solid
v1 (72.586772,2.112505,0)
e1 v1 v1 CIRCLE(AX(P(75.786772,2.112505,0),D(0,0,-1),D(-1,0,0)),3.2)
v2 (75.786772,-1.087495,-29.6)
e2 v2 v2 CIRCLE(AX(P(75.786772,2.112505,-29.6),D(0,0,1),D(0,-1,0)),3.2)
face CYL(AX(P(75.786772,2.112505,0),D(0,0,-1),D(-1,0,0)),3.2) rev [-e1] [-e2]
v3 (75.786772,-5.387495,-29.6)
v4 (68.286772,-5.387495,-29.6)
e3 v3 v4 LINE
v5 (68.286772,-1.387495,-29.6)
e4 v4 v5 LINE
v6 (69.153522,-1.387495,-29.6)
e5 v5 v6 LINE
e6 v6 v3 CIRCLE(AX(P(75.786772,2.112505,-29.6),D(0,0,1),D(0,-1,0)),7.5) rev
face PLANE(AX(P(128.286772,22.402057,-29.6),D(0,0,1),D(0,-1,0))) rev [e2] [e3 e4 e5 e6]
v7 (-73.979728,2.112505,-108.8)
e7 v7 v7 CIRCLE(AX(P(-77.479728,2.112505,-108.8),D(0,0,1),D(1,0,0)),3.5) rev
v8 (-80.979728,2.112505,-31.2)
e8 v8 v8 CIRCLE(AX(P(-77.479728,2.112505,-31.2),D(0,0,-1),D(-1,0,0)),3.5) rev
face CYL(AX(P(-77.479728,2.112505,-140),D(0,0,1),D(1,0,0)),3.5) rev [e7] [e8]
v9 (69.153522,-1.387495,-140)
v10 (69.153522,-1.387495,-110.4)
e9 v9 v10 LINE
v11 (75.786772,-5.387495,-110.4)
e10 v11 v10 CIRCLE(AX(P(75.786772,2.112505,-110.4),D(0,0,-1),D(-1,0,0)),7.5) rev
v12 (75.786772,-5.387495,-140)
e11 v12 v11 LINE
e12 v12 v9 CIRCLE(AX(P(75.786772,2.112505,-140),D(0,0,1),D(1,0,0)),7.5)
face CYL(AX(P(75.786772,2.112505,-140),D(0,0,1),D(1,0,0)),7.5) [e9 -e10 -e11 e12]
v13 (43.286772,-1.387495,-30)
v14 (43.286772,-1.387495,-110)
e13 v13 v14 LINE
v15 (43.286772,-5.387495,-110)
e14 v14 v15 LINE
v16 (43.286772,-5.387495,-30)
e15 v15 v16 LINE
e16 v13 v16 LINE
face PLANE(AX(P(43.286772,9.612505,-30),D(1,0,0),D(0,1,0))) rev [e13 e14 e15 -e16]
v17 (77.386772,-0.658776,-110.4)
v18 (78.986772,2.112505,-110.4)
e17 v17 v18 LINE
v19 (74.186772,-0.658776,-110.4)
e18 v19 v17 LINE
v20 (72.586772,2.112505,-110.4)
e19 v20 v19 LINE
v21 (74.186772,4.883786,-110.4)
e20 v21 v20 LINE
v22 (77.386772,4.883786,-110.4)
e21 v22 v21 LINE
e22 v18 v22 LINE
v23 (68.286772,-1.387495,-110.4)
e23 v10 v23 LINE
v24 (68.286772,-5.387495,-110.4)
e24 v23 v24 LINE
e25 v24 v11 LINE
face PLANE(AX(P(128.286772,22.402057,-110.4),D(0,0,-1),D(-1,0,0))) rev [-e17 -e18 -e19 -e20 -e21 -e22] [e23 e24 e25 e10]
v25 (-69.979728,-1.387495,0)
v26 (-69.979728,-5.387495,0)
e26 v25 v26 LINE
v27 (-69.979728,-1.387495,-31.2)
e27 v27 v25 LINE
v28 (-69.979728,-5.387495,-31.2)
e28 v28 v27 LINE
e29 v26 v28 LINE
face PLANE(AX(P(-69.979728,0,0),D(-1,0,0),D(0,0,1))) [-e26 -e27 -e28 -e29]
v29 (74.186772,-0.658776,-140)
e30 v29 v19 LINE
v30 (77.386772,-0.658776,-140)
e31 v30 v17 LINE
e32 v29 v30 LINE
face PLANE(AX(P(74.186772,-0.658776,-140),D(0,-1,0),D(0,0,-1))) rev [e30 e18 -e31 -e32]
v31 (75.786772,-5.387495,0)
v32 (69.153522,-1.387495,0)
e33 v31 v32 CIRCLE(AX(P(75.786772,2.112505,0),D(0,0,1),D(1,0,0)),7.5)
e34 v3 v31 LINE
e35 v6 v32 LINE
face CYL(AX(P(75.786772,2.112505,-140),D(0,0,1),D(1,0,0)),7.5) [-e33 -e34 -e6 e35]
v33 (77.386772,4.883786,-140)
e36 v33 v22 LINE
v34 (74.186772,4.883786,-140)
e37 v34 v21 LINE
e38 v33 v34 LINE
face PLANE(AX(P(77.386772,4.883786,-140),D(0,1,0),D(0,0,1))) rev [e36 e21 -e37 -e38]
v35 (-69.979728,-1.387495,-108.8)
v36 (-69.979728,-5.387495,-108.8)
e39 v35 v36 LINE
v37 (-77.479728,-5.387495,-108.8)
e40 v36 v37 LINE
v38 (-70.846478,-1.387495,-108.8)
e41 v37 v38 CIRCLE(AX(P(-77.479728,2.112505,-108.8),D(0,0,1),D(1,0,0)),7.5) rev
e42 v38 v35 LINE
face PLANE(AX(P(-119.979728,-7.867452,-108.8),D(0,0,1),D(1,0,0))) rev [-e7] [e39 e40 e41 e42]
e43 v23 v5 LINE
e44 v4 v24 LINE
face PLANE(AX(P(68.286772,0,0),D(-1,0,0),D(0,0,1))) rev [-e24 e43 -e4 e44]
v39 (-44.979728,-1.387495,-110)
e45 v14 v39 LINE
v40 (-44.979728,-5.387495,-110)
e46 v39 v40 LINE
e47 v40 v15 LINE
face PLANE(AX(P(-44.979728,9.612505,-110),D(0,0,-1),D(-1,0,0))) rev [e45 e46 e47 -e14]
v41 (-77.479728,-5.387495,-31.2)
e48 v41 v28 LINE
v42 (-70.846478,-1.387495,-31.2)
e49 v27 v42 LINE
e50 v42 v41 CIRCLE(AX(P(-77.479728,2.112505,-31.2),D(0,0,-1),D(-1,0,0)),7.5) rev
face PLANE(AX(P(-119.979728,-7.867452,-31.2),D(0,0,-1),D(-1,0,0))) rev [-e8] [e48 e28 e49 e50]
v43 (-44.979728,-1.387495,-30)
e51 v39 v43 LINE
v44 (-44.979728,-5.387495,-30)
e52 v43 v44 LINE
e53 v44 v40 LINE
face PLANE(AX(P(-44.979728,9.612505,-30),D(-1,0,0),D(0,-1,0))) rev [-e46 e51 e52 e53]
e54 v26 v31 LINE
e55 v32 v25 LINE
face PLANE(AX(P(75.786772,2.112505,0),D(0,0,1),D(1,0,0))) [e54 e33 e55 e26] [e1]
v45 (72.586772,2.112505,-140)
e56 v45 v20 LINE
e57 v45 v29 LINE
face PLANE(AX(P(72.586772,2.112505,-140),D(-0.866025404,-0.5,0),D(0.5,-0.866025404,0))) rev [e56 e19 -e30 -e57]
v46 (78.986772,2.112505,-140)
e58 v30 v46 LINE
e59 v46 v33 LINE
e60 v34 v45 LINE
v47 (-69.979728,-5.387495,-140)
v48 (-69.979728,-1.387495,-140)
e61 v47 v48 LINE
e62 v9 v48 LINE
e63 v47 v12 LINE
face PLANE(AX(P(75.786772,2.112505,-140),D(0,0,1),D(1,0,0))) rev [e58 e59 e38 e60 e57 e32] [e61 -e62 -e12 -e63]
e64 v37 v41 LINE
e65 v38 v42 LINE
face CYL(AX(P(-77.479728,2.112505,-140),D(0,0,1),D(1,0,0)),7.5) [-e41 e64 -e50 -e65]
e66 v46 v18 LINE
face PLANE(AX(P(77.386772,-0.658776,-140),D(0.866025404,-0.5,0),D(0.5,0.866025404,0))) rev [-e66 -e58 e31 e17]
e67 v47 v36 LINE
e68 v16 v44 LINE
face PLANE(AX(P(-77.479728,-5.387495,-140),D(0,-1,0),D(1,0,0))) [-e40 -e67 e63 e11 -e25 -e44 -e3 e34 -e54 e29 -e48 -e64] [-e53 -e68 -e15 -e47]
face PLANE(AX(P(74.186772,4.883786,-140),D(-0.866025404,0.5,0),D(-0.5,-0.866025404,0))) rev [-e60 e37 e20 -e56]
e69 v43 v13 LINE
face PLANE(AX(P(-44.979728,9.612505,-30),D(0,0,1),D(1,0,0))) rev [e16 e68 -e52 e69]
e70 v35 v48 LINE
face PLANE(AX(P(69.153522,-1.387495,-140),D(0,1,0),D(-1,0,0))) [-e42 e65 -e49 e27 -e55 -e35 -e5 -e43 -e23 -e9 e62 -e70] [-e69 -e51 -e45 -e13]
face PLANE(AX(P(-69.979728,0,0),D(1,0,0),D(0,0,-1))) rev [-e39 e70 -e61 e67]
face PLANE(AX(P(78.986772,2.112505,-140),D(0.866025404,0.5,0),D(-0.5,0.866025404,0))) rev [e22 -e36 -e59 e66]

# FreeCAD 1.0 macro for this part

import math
import FreeCAD as App
import Part
import Sketcher
Q = App.Units.Quantity


def add_polygon(sketch, points):
    """Adds a closed chain of lines whose ends are joined by coincident constraints."""
    first, n = sketch.GeometryCount, len(points)
    for a, b in zip(points, points[1:] + points[:1]):
        sketch.addGeometry(Part.LineSegment(App.Vector(*a, 0), App.Vector(*b, 0)), False)
    for i in range(n):
        sketch.addConstraint(Sketcher.Constraint("Coincident", first + i, 2, first + (i + 1) % n, 1))

doc = App.newDocument("Part")
body = doc.addObject("PartDesign::Body", "Body")

sketch1 = body.newObject("Sketcher::SketchObject", "Sketch")
sketch1.AttachmentSupport = (doc.getObject("XY_Plane"), [""])
sketch1.MapMode = "FlatFace"
sketch1.addGeometry(Part.LineSegment(App.Vector(-77.5, -5.4, 0), App.Vector(75.8, -5.4, 0)), False)
sketch1.addGeometry(Part.ArcOfCircle(Part.Circle(App.Vector(75.8, 2.1, 0), App.Vector(0, 0, 1), 7.5), math.radians(-90), math.radians(208)), False)
sketch1.addGeometry(Part.LineSegment(App.Vector(69.2, -1.4, 0), App.Vector(-70.8, -1.4, 0)), False)
sketch1.addGeometry(Part.ArcOfCircle(Part.Circle(App.Vector(-77.5, 2.1, 0), App.Vector(0, 0, 1), 7.5), math.radians(-28), math.radians(270)), False)
sketch1.addGeometry(Part.Circle(App.Vector(-77.5, 2.1, 0), App.Vector(0, 0, 1), 3.5), False)
add_polygon(sketch1, [(74.2, 4.9), (77.4, 4.9), (79, 2.1), (77.4, -0.7), (74.2, -0.7), (72.6, 2.1)])
sketch1.addConstraint(Sketcher.Constraint("Tangent", 0, 2, 1, 1))
sketch1.addConstraint(Sketcher.Constraint("Coincident", 1, 2, 2, 1))
sketch1.addConstraint(Sketcher.Constraint("Coincident", 2, 2, 3, 1))
sketch1.addConstraint(Sketcher.Constraint("Tangent", 3, 2, 0, 1))
sketch1.addConstraint(Sketcher.Constraint("Horizontal", 0))
sketch1.addConstraint(Sketcher.Constraint("Horizontal", 2))
sketch1.addConstraint(Sketcher.Constraint("Horizontal", 5))
sketch1.addConstraint(Sketcher.Constraint("Horizontal", 8))
sketch1.addConstraint(Sketcher.Constraint("Coincident", 4, 3, 3, 3))
sketch1.addConstraint(Sketcher.Constraint("Equal", 1, 3))
sketch1.addConstraint(Sketcher.Constraint("Parallel", 6, 9))
sketch1.addConstraint(Sketcher.Constraint("Parallel", 7, 10))
sketch1.addConstraint(Sketcher.Constraint("Horizontal", 4, 3, 6, 2))
sketch1.addConstraint(Sketcher.Constraint("Horizontal", 6, 2, 9, 2))
sketch1.addConstraint(Sketcher.Constraint("Vertical", 5, 2, 7, 2))
sketch1.addConstraint(Sketcher.Constraint("Vertical", 8, 2, 10, 2))
sketch1.addConstraint(Sketcher.Constraint("Diameter", 4, Q("7 mm")))
sketch1.addConstraint(Sketcher.Constraint("Radius", 1, Q("7.5 mm")))
sketch1.addConstraint(Sketcher.Constraint("DistanceX", 2, 2, 2, 1, Q("140 mm")))
sketch1.addConstraint(Sketcher.Constraint("Angle", 6, Q("-60 deg")))
sketch1.addConstraint(Sketcher.Constraint("DistanceX", 5, 1, 5, 2, Q("3.2 mm")))
sketch1.addConstraint(Sketcher.Constraint("DistanceY", 0, 2, 1, 2, Q("4 mm")))
sketch1.addConstraint(Sketcher.Constraint("Distance", 6, Q("3.2 mm")))
sketch1.addConstraint(Sketcher.Constraint("DistanceX", 1, 3, 5, 2, Q("1.6 mm")))
sketch1.addConstraint(Sketcher.Constraint("DistanceX", -1, 1, 1, 3, Q("75.786772 mm")))
sketch1.addConstraint(Sketcher.Constraint("DistanceY", -1, 1, 1, 3, Q("2.112505 mm")))
pad1 = body.newObject("PartDesign::Pad", "Pad")
pad1.Profile = sketch1
pad1.Length = 140
pad1.Reversed = True

sketch2 = body.newObject("Sketcher::SketchObject", "Sketch001")
sketch2.AttachmentSupport = (doc.getObject("YZ_Plane"), [""])
sketch2.MapMode = "FlatFace"
sketch2.AttachmentOffset = App.Placement(App.Vector(0, 0, -69.979728), App.Rotation())
add_polygon(sketch2, [(10, 0), (-8, 0), (-8, -31), (10, -31)])
add_polygon(sketch2, [(10, -109), (-8, -109), (-8, -140), (10, -140)])
sketch2.addConstraint(Sketcher.Constraint("Horizontal", 0))
sketch2.addConstraint(Sketcher.Constraint("Vertical", 1))
sketch2.addConstraint(Sketcher.Constraint("Horizontal", 2))
sketch2.addConstraint(Sketcher.Constraint("Vertical", 3))
sketch2.addConstraint(Sketcher.Constraint("Horizontal", 4))
sketch2.addConstraint(Sketcher.Constraint("Vertical", 5))
sketch2.addConstraint(Sketcher.Constraint("Horizontal", 6))
sketch2.addConstraint(Sketcher.Constraint("Vertical", 7))
sketch2.addConstraint(Sketcher.Constraint("PointOnObject", 0, 2, -1))
sketch2.addConstraint(Sketcher.Constraint("Vertical", 1, 2, 4, 2))
sketch2.addConstraint(Sketcher.Constraint("Vertical", 3, 2, 6, 2))
sketch2.addConstraint(Sketcher.Constraint("Equal", 3, 5))
sketch2.addConstraint(Sketcher.Constraint("DistanceY", 1, 2, 1, 1, Q("31.2 mm")))
sketch2.addConstraint(Sketcher.Constraint("DistanceY", 5, 2, -1, 1, Q("140 mm")))
sketch2.addConstraint(Sketcher.Constraint("DistanceX", 0, 2, 0, 1, Q("17.479957 mm")))
sketch2.addConstraint(Sketcher.Constraint("DistanceX", 0, 2, -1, 1, Q("7.867452 mm")))
pocket1 = body.newObject("PartDesign::Pocket", "Pocket")
pocket1.Profile = sketch2
pocket1.Length = 50

sketch3 = body.newObject("Sketcher::SketchObject", "Sketch002")
sketch3.AttachmentSupport = (doc.getObject("YZ_Plane"), [""])
sketch3.MapMode = "FlatFace"
sketch3.AttachmentOffset = App.Placement(App.Vector(0, 0, 68.286772), App.Rotation())
add_polygon(sketch3, [(-19, -30), (22, -30), (22, -110), (-19, -110)])
sketch3.addConstraint(Sketcher.Constraint("Horizontal", 0))
sketch3.addConstraint(Sketcher.Constraint("Vertical", 1))
sketch3.addConstraint(Sketcher.Constraint("Horizontal", 2))
sketch3.addConstraint(Sketcher.Constraint("Vertical", 3))
sketch3.addConstraint(Sketcher.Constraint("DistanceY", 1, 2, 1, 1, Q("80.8 mm")))
sketch3.addConstraint(Sketcher.Constraint("DistanceY", 0, 2, -1, 1, Q("29.6 mm")))
sketch3.addConstraint(Sketcher.Constraint("DistanceX", 0, 1, 0, 2, Q("41.47501 mm")))
sketch3.addConstraint(Sketcher.Constraint("DistanceX", -1, 1, 0, 2, Q("22.402057 mm")))
pocket2 = body.newObject("PartDesign::Pocket", "Pocket001")
pocket2.Profile = sketch3
pocket2.Length = 60
pocket2.Reversed = True

sketch4 = body.newObject("Sketcher::SketchObject", "Sketch003")
sketch4.AttachmentSupport = (doc.getObject("XY_Plane"), [""])
sketch4.MapMode = "FlatFace"
sketch4.AttachmentOffset = App.Placement(App.Vector(0, 0, -29.6), App.Rotation())
sketch4.addGeometry(Part.Circle(App.Vector(75.8, 2.1, 0), App.Vector(0, 0, 1), 3.2), False)
sketch4.addConstraint(Sketcher.Constraint("Diameter", 0, Q("6.4 mm")))
sketch4.addConstraint(Sketcher.Constraint("DistanceX", -1, 1, 0, 3, Q("75.786772 mm")))
sketch4.addConstraint(Sketcher.Constraint("DistanceY", -1, 1, 0, 3, Q("2.112505 mm")))
pocket3 = body.newObject("PartDesign::Pocket", "Pocket002")
pocket3.Profile = sketch4
pocket3.Type = "ThroughAll"
pocket3.Reversed = True

sketch5 = body.newObject("Sketcher::SketchObject", "Sketch004")
sketch5.AttachmentSupport = (doc.getObject("XZ_Plane"), [""])
sketch5.MapMode = "FlatFace"
sketch5.AttachmentOffset = App.Placement(App.Vector(0, 0, 5.387495), App.Rotation())
add_polygon(sketch5, [(-45, -30), (-45, -110), (43, -110), (43, -30)])
sketch5.addConstraint(Sketcher.Constraint("Vertical", 0))
sketch5.addConstraint(Sketcher.Constraint("Horizontal", 1))
sketch5.addConstraint(Sketcher.Constraint("Vertical", 2))
sketch5.addConstraint(Sketcher.Constraint("Horizontal", 3))
sketch5.addConstraint(Sketcher.Constraint("DistanceY", 0, 2, 0, 1, Q("80 mm")))
sketch5.addConstraint(Sketcher.Constraint("DistanceY", 0, 2, -1, 1, Q("110 mm")))
sketch5.addConstraint(Sketcher.Constraint("DistanceX", 1, 1, 1, 2, Q("88.266499 mm")))
sketch5.addConstraint(Sketcher.Constraint("DistanceX", -1, 1, 1, 2, Q("43.286772 mm")))
pocket4 = body.newObject("PartDesign::Pocket", "Pocket003")
pocket4.Profile = sketch5
pocket4.Type = "ThroughAll"

doc.recompute()
